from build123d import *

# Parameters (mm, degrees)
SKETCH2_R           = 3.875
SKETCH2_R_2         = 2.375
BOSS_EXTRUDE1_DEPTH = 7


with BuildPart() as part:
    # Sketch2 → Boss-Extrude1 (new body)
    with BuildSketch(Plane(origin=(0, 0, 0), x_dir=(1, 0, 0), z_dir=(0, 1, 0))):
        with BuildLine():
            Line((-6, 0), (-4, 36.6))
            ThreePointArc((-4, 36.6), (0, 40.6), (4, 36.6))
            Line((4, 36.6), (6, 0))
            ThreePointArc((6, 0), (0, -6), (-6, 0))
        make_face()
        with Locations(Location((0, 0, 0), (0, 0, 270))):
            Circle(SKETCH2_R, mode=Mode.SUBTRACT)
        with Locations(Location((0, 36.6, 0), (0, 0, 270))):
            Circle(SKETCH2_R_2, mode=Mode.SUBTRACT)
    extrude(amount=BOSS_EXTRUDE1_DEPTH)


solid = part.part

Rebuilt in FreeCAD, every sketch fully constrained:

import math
import FreeCAD as App
import Part
import Sketcher

V = App.Vector

doc = App.newDocument("Part")
body = doc.addObject("PartDesign::Body", "Body")

sketch1 = doc.addObject("Sketcher::SketchObject", "Sketch")
body.addObject(sketch1)
sketch1.AttachmentSupport = (doc.XZ_Plane, [""])
sketch1.MapMode = "FlatFace"
sketch1.addGeometry([
    Part.LineSegment(V(-4, -36.6, 0), V(-6, 0, 0)),
    Part.ArcOfCircle(Part.Circle(V(0, 0, 0), V(0, 0, 1), 6), math.radians(0), math.radians(180)),
    Part.LineSegment(V(6, 0, 0), V(4, -36.6, 0)),
    Part.ArcOfCircle(Part.Circle(V(0, -36.6, 0), V(0, 0, 1), 4), math.radians(180), math.radians(360)),
    Part.Circle(V(0, 0, 0), V(0, 0, 1), 3.9),
    Part.Circle(V(0, -36.6, 0), V(0, 0, 1), 2.4),
], False)
sketch1.addConstraint([
    Sketcher.Constraint("Coincident", 0, 2, 1, 2),
    Sketcher.Constraint("Coincident", 1, 1, 2, 1),
    Sketcher.Constraint("Coincident", 2, 2, 3, 2),
    Sketcher.Constraint("Coincident", 3, 1, 0, 1),
    Sketcher.Constraint("Coincident", 1, 3, -1, 1),
    Sketcher.Constraint("Coincident", 4, 3, -1, 1),
    Sketcher.Constraint("Coincident", 5, 3, 3, 3),
    Sketcher.Constraint("Symmetric", 2, 2, 3, 1, -2),
    Sketcher.Constraint("PointOnObject", 0, 2, -1),
    Sketcher.Constraint("PointOnObject", 1, 1, -1),
    Sketcher.Constraint("Horizontal", 5, 3, 2, 2),
    Sketcher.Constraint("Radius", 1, 6.0),
    Sketcher.Constraint("Radius", 3, 4.0),
    Sketcher.Constraint("Diameter", 4, 7.75),
    Sketcher.Constraint("Diameter", 5, 4.75),
    Sketcher.Constraint("DistanceY", 3, 3, -1, 1, 36.6),
])
pad1 = doc.addObject("PartDesign::Pad", "Pad")
body.addObject(pad1)
pad1.Profile = sketch1
pad1.Length = 7
pad1.Reversed = True

doc.recompute()
